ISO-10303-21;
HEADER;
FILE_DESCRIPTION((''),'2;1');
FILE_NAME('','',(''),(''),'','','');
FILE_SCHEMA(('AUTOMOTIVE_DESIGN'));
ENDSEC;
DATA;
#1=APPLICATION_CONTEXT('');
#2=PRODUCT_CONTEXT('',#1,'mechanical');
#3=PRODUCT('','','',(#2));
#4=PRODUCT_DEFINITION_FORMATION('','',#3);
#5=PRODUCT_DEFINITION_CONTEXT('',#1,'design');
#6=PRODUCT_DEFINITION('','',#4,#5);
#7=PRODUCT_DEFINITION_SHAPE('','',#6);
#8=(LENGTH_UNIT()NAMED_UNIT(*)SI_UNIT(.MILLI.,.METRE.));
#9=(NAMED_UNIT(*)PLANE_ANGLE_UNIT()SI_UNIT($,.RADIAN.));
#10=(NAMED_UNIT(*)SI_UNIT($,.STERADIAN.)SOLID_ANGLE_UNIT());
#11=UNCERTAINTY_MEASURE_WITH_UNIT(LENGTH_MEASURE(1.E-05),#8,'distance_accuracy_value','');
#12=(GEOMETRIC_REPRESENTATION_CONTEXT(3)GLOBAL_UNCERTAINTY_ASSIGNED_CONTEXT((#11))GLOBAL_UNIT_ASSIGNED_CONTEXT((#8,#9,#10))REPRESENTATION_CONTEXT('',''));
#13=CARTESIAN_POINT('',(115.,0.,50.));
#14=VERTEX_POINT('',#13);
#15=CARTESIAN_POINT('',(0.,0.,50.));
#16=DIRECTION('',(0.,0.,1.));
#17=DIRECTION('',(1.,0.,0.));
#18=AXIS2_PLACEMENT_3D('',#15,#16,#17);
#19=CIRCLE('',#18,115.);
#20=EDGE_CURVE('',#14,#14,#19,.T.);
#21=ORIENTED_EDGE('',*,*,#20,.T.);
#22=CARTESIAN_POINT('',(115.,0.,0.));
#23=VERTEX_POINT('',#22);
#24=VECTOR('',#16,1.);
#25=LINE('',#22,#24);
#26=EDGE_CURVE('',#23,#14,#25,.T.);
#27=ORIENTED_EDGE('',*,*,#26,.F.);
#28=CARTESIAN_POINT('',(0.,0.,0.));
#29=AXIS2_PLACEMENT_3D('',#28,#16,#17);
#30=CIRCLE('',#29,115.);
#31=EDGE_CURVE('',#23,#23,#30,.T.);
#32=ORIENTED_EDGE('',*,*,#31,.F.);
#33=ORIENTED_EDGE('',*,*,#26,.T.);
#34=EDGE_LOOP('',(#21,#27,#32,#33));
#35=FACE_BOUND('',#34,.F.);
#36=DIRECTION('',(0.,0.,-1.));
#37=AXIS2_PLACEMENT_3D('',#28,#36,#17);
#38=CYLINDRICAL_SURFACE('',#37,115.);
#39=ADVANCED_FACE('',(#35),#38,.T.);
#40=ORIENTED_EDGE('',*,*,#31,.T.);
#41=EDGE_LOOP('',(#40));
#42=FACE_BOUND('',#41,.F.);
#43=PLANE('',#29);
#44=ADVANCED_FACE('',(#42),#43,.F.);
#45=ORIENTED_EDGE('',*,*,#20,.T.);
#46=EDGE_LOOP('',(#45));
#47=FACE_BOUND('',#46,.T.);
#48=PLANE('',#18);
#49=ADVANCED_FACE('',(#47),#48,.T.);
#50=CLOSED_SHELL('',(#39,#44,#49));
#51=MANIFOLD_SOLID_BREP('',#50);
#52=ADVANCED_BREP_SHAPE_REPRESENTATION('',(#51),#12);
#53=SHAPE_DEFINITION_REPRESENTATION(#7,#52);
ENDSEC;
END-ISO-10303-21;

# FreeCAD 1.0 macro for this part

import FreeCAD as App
import Part
import Sketcher
from FreeCAD import Vector
Q = App.Units.Quantity

doc = App.newDocument("Part")
body = doc.addObject("PartDesign::Body", "Body")

# Sketch on XY plane
sketch1 = doc.addObject("Sketcher::SketchObject", "Sketch")
body.addObject(sketch1)
sketch1.AttachmentSupport = (doc.XY_Plane, [""])
sketch1.MapMode = "FlatFace"
sketch1.addGeometry(Part.Circle(Vector(0, 0, 0), Vector(0, 0, 1), 115), False)
sketch1.addConstraint([
    Sketcher.Constraint("Coincident", 0, 3, -1, 1),
    Sketcher.Constraint("Diameter", 0, Q("230 mm")),
])
pad1 = doc.addObject("PartDesign::Pad", "Pad")
body.addObject(pad1)
pad1.Profile = sketch1
pad1.Length = 50

doc.recompute()
